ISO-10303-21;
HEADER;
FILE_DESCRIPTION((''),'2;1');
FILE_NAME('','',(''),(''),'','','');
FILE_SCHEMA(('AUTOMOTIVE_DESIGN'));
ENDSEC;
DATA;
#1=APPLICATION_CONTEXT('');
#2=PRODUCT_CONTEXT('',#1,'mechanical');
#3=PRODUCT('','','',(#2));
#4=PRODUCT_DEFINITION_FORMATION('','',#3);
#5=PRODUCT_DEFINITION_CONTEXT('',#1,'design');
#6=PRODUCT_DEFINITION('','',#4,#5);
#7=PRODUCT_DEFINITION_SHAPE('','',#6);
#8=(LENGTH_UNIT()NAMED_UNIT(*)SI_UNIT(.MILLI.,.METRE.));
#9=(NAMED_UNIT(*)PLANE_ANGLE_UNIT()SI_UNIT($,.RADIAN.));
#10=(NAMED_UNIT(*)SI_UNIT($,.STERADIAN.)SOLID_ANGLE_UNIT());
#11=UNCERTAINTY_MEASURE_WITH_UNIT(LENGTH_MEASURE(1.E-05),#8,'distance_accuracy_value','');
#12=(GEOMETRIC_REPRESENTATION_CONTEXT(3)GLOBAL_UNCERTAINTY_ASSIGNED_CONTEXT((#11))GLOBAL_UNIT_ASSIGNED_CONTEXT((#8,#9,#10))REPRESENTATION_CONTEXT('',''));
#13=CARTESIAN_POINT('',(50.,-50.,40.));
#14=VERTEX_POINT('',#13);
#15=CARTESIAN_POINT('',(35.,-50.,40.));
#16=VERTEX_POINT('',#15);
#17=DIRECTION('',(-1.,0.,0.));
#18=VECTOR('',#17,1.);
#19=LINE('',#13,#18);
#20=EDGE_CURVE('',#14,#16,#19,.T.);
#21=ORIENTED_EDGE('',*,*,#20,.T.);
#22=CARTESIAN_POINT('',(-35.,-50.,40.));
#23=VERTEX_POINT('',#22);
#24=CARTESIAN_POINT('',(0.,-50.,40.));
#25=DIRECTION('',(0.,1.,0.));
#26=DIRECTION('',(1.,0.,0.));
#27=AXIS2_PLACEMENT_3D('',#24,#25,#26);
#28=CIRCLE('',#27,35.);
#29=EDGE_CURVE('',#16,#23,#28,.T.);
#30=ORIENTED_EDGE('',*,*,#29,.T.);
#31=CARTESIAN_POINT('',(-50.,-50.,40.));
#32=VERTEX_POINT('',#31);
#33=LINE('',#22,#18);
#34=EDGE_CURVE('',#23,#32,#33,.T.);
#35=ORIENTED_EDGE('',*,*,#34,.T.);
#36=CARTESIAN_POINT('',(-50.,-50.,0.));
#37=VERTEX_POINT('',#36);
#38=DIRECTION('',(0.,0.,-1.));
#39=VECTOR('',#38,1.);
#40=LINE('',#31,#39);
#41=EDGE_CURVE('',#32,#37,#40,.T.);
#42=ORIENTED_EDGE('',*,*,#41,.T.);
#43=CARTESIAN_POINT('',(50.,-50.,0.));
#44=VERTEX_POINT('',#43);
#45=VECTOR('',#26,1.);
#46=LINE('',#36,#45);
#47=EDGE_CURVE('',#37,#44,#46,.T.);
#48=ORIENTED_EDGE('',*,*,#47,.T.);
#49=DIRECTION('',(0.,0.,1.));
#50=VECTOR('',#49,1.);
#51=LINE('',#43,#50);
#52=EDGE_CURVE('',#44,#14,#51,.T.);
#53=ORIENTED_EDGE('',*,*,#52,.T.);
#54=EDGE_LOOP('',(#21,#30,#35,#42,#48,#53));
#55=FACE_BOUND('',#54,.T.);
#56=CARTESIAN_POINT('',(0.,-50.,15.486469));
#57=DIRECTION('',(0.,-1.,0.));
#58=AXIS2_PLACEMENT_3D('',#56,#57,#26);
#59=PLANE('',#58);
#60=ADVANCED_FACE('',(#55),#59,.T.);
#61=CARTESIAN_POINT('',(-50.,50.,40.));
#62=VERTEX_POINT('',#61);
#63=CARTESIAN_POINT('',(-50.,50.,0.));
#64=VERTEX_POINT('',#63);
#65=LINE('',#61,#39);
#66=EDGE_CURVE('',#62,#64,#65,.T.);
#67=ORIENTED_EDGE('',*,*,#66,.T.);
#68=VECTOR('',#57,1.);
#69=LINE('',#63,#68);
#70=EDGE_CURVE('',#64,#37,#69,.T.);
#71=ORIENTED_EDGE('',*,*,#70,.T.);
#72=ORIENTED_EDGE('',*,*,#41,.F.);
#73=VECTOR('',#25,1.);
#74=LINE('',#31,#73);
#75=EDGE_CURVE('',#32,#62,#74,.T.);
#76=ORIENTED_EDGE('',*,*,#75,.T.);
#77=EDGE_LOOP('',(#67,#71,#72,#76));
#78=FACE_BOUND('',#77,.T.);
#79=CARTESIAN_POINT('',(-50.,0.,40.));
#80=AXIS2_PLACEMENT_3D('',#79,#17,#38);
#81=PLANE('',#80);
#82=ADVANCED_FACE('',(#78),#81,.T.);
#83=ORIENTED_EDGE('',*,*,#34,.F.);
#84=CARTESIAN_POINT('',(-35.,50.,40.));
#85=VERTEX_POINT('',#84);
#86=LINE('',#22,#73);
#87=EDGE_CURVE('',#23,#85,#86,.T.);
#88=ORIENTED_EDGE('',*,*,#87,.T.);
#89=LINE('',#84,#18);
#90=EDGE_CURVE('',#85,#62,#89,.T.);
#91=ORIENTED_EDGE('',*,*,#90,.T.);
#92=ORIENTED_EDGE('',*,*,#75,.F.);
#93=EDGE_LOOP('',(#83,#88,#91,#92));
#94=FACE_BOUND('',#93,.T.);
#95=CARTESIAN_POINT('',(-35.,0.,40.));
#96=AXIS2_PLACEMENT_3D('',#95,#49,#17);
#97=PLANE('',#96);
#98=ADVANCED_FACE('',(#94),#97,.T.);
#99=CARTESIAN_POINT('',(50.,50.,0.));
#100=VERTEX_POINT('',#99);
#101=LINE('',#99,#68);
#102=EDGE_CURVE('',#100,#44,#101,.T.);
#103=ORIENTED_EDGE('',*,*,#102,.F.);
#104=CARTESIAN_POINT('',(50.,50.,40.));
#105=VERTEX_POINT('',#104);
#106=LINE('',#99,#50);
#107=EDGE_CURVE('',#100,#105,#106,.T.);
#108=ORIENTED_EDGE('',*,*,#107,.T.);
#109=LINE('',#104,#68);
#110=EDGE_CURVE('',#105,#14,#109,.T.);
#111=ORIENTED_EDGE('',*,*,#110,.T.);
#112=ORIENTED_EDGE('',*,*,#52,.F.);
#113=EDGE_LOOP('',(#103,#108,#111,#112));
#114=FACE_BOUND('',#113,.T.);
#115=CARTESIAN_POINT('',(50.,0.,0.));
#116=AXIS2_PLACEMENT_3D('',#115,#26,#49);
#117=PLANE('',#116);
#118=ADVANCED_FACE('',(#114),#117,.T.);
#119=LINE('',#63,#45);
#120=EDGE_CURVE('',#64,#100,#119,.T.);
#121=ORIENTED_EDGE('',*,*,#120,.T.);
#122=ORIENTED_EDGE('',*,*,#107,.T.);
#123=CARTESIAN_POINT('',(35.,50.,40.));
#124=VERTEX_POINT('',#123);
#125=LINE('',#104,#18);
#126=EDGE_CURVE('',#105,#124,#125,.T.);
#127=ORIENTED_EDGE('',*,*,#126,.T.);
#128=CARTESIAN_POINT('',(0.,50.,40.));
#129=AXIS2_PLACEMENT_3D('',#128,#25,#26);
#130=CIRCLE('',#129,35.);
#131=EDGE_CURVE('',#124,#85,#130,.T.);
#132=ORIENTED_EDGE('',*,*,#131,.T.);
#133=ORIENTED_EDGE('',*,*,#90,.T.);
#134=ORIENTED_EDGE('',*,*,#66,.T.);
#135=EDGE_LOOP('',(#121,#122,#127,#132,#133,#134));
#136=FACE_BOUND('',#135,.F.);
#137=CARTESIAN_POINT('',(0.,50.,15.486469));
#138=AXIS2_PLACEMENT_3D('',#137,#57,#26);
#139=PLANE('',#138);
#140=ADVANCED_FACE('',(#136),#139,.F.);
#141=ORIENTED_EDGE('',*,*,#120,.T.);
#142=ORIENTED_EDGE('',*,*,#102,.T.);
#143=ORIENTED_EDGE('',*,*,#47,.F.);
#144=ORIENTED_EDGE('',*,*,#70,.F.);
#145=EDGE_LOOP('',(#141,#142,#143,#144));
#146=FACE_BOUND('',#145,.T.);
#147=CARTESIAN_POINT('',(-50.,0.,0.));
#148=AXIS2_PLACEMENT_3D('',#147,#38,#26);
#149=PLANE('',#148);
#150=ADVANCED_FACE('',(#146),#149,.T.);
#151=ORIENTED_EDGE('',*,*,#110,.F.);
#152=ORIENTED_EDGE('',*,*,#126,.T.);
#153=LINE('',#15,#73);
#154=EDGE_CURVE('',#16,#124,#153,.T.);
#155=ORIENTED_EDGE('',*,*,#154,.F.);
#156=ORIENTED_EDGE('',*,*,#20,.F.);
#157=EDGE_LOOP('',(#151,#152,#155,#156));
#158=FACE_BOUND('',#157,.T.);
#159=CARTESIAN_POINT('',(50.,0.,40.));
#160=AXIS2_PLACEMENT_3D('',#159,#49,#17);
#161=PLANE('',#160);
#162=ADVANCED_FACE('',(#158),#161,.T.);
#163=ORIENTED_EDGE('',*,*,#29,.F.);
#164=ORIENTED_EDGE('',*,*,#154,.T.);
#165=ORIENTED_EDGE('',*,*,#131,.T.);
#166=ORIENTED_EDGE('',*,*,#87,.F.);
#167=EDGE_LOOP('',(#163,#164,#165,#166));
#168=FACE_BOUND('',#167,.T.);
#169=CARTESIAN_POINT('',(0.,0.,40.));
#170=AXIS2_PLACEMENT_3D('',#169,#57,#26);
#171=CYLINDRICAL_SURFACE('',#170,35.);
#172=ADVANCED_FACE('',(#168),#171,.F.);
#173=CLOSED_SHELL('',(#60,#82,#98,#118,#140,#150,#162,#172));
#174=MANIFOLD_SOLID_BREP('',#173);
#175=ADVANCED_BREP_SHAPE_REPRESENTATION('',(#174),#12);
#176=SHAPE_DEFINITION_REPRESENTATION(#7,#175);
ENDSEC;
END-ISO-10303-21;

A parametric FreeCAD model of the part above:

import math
import FreeCAD as App
import Part
import Sketcher
Q = App.Units.Quantity

doc = App.newDocument("Part")
params = doc.addObject("Spreadsheet::Sheet", "Params")
for row, (alias, value) in enumerate([
    ("sketch1_radius", "35 mm"),
    ("sketch1_width", "100 mm"),
    ("sketch1_height", "40 mm"),
    ("pad1_length", "100 mm"),
], start=1):
    params.set(f"A{row}", alias)
    params.set(f"B{row}", "=" + value)
    params.setAlias(f"B{row}", alias)

body = doc.addObject("PartDesign::Body", "Body")

# Sketch on XZ plane
sketch1 = body.newObject("Sketcher::SketchObject", "Sketch")
sketch1.AttachmentSupport = (doc.getObject("XZ_Plane"), [""])
sketch1.MapMode = "FlatFace"
sketch1.addGeometry([
    Part.LineSegment(App.Vector(-50, 40, 0), App.Vector(-50, 0, 0)),  # 0
    Part.LineSegment(App.Vector(-50, 0, 0), App.Vector(50, 0, 0)),  # 1
    Part.LineSegment(App.Vector(50, 0, 0), App.Vector(50, 40, 0)),  # 2
    Part.LineSegment(App.Vector(50, 40, 0), App.Vector(35, 40, 0)),  # 3
    Part.ArcOfCircle(Part.Circle(App.Vector(0, 40, 0), App.Vector(0, 0, 1), 35), math.radians(180), math.radians(360)),  # 4
    Part.LineSegment(App.Vector(-35, 40, 0), App.Vector(-50, 40, 0)),  # 5
], False)
sketch1.addConstraint([
    Sketcher.Constraint("Coincident", 0, 2, 1, 1),
    Sketcher.Constraint("Coincident", 1, 2, 2, 1),
    Sketcher.Constraint("Coincident", 2, 2, 3, 1),
    Sketcher.Constraint("Coincident", 3, 2, 4, 2),
    Sketcher.Constraint("Coincident", 4, 1, 5, 1),
    Sketcher.Constraint("Coincident", 5, 2, 0, 1),
    Sketcher.Constraint("Vertical", 0),
    Sketcher.Constraint("Horizontal", 1),
    Sketcher.Constraint("Vertical", 2),
    Sketcher.Constraint("Horizontal", 3),
    Sketcher.Constraint("Horizontal", 5),
    Sketcher.Constraint("Symmetric", 0, 2, 1, 2, -1, 1),
    Sketcher.Constraint("Symmetric", 3, 2, 4, 1, -2),
    Sketcher.Constraint("Horizontal", 4, 3, 2, 2),
    Sketcher.Constraint("Radius", 4, Q("35 mm")),
    Sketcher.Constraint("DistanceX", 1, 1, 1, 2, Q("100 mm")),
    Sketcher.Constraint("DistanceY", 0, 2, 0, 1, Q("40 mm")),
])
sketch1.setExpression("Constraints[14]", "Params.sketch1_radius")
sketch1.setExpression("Constraints[15]", "Params.sketch1_width")
sketch1.setExpression("Constraints[16]", "Params.sketch1_height")
pad1 = body.newObject("PartDesign::Pad", "Pad")
pad1.Profile = sketch1
pad1.setExpression("Length", "Params.pad1_length")
pad1.Midplane = True

doc.recompute()
